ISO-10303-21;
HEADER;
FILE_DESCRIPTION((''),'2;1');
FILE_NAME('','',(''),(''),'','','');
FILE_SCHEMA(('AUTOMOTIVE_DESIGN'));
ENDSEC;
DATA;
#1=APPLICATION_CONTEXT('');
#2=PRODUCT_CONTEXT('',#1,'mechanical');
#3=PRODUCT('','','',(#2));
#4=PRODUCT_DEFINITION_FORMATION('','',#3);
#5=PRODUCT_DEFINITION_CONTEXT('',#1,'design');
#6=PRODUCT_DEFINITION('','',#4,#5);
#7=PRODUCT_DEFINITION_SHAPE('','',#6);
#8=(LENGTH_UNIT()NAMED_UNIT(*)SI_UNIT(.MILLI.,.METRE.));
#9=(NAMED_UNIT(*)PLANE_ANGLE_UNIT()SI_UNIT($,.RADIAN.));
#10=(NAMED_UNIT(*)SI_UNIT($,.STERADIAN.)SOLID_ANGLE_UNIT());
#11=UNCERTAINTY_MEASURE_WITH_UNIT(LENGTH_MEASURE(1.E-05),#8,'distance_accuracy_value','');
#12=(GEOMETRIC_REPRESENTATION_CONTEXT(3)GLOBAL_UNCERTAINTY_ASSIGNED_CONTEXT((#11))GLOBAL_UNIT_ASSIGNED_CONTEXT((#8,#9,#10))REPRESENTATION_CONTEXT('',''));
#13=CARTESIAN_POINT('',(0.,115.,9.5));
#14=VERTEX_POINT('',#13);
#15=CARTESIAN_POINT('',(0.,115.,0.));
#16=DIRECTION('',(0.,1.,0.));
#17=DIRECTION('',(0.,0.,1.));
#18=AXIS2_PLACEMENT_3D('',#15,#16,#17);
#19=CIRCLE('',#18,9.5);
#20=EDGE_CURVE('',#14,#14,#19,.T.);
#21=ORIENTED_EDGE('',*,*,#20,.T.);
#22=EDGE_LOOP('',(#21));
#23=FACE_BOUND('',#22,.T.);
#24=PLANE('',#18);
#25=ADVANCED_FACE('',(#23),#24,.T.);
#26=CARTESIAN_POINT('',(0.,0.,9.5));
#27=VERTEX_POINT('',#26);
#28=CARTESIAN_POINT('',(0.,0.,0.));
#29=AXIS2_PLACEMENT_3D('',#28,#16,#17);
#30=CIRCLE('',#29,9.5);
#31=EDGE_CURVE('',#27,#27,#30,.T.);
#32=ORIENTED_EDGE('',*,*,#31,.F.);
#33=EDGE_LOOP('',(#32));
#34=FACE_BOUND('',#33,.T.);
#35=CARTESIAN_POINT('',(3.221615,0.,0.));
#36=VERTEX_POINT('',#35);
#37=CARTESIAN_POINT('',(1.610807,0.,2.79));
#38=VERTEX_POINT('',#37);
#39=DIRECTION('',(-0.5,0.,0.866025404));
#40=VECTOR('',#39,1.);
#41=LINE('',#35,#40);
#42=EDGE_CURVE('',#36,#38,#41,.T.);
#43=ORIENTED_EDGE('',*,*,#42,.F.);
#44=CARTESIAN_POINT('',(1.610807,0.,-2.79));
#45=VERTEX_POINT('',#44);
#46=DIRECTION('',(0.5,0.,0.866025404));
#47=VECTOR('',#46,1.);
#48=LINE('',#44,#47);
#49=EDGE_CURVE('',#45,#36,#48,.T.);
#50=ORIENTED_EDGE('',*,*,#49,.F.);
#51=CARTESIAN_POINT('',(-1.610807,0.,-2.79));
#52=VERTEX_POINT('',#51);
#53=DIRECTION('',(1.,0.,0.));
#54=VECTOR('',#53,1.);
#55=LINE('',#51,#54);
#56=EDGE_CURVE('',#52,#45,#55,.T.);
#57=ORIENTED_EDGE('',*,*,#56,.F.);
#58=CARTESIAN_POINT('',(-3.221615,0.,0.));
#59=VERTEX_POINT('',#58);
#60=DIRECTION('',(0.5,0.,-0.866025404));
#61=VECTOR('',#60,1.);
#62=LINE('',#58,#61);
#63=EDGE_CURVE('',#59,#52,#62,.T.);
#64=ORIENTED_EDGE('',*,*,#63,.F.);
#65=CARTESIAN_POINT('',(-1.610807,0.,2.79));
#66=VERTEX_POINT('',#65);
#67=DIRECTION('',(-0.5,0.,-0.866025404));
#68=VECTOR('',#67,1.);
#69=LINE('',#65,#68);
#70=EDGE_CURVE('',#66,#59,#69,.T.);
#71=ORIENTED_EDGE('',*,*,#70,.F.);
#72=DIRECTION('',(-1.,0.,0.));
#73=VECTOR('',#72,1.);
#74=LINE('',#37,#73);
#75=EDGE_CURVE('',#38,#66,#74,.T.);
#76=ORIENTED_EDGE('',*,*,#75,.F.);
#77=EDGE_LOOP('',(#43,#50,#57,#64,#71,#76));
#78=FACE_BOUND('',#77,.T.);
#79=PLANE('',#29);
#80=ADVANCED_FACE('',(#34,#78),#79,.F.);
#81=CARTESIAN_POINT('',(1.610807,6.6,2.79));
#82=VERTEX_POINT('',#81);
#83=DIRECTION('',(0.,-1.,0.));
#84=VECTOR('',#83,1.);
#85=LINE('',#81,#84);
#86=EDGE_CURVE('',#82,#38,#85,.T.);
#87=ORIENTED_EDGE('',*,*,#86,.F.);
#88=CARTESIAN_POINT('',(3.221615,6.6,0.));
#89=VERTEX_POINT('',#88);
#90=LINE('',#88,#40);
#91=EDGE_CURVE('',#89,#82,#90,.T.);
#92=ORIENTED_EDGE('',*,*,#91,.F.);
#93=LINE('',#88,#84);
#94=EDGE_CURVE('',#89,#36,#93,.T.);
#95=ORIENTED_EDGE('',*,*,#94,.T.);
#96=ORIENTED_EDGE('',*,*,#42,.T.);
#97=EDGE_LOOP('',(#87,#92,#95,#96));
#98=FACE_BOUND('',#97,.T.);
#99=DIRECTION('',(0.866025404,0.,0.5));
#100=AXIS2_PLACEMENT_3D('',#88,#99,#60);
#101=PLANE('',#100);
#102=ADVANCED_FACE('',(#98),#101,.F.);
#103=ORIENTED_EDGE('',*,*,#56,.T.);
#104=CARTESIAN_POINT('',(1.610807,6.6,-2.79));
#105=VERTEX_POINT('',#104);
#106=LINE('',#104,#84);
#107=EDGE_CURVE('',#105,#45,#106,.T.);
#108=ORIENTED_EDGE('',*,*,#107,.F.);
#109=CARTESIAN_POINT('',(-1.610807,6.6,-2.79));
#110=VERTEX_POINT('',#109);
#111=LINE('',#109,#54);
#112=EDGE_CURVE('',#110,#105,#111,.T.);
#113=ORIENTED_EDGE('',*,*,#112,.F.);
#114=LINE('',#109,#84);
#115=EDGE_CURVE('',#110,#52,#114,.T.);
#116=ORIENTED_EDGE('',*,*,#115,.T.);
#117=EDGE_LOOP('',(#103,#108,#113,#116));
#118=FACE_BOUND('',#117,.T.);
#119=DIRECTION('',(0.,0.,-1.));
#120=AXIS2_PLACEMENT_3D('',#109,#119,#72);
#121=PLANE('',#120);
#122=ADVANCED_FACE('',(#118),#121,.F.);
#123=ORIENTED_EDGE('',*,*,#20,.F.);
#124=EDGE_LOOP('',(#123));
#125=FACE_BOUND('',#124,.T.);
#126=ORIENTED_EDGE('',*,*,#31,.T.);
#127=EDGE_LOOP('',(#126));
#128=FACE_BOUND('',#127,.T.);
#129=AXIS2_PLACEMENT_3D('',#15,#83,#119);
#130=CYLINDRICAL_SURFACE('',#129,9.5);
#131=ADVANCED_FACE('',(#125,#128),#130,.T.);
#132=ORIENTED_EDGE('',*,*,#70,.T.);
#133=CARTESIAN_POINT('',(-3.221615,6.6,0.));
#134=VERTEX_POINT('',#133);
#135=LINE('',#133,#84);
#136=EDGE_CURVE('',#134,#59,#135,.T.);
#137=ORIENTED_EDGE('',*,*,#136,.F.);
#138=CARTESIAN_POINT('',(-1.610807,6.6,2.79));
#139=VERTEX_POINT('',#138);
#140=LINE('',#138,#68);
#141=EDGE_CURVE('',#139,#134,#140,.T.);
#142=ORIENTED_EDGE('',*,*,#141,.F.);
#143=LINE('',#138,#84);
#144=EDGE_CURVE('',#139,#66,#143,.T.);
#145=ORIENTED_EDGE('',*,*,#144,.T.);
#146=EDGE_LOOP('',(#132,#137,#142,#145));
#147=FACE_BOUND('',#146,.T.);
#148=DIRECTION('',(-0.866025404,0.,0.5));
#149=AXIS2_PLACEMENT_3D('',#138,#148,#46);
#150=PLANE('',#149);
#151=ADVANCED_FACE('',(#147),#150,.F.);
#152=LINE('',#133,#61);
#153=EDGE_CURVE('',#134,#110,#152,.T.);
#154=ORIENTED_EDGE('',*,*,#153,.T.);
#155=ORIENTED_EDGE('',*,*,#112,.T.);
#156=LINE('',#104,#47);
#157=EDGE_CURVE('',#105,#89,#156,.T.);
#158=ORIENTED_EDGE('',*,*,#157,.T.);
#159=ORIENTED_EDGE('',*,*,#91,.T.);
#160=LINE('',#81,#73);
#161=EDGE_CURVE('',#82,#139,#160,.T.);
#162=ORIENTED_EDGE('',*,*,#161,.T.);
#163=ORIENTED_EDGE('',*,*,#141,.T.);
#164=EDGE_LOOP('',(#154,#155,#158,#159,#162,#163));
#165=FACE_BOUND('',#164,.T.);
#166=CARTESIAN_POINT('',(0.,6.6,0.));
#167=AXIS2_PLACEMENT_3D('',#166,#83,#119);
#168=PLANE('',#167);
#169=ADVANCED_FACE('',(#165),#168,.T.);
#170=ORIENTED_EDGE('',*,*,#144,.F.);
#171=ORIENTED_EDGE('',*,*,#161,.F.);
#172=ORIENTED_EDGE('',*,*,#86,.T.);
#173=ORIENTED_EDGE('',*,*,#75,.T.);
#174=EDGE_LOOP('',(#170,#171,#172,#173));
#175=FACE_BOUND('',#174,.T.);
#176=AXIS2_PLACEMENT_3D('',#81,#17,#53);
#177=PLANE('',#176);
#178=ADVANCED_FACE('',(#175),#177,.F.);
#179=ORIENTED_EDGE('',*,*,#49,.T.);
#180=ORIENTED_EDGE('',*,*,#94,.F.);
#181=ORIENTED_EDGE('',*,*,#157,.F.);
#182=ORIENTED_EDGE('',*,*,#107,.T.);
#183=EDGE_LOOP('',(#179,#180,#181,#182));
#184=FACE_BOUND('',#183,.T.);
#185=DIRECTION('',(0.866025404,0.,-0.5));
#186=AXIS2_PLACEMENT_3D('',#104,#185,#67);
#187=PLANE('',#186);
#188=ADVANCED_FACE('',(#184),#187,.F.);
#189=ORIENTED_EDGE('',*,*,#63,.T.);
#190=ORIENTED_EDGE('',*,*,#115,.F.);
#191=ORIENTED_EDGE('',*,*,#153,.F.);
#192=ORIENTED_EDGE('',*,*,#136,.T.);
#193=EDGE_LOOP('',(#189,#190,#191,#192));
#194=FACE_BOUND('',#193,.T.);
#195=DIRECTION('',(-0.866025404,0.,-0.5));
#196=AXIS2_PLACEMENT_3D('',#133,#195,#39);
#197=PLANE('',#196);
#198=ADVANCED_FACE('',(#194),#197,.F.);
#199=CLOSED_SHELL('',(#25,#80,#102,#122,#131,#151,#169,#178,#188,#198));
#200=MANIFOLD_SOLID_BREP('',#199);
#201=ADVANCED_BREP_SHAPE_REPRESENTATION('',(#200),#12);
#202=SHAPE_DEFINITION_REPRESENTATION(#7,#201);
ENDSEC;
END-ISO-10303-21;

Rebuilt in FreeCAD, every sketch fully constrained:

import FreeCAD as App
import Part
import Sketcher

V = App.Vector
Q = App.Units.Quantity

doc = App.newDocument("Part")
body = doc.addObject("PartDesign::Body", "Body")

# Sketch on XZ plane
sketch1 = doc.addObject("Sketcher::SketchObject", "Sketch")
body.addObject(sketch1)
sketch1.AttachmentSupport = (doc.XZ_Plane, [""])
sketch1.MapMode = "FlatFace"
sketch1.addGeometry(Part.Circle(V(0, 0, 0), V(0, 0, 1), 10), False)
sketch1.addConstraint([
    Sketcher.Constraint("Coincident", 0, 3, -1, 1),
    Sketcher.Constraint("Diameter", 0, 19.0),
])
pad1 = doc.addObject("PartDesign::Pad", "Pad")
body.addObject(pad1)
pad1.Profile = sketch1
pad1.Length = 115
pad1.Reversed = True

# Sketch on XZ plane
sketch2 = doc.addObject("Sketcher::SketchObject", "Sketch001")
body.addObject(sketch2)
sketch2.AttachmentSupport = (doc.XZ_Plane, [""])
sketch2.MapMode = "FlatFace"
sketch2.addGeometry([
    Part.LineSegment(V(1.6, 2.8, 0), V(-1.6, 2.8, 0)),  # 0
    Part.LineSegment(V(-1.6, 2.8, 0), V(-3.2, 0, 0)),  # 1
    Part.LineSegment(V(-3.2, 0, 0), V(-1.6, -2.8, 0)),  # 2
    Part.LineSegment(V(-1.6, -2.8, 0), V(1.6, -2.8, 0)),  # 3
    Part.LineSegment(V(1.6, -2.8, 0), V(3.2, 0, 0)),  # 4
    Part.LineSegment(V(3.2, 0, 0), V(1.6, 2.8, 0)),  # 5
], False)
sketch2.addConstraint([
    Sketcher.Constraint("Coincident", 0, 2, 1, 1),
    Sketcher.Constraint("Coincident", 1, 2, 2, 1),
    Sketcher.Constraint("Coincident", 2, 2, 3, 1),
    Sketcher.Constraint("Coincident", 3, 2, 4, 1),
    Sketcher.Constraint("Coincident", 4, 2, 5, 1),
    Sketcher.Constraint("Coincident", 5, 2, 0, 1),
    Sketcher.Constraint("Horizontal", 0),
    Sketcher.Constraint("Horizontal", 3),
    Sketcher.Constraint("Symmetric", 0, 2, 3, 2, -1, 1),
    Sketcher.Constraint("Symmetric", 1, 2, 4, 2, -1, 1),
    Sketcher.Constraint("PointOnObject", 1, 2, -1),
    Sketcher.Constraint("Parallel", 2, 5),
    Sketcher.Constraint("Vertical", 0, 2, 2, 2),
    Sketcher.Constraint("Angle", 1, Q("-120 deg")),
    Sketcher.Constraint("DistanceY", -1, 1, 0, 2, 2.79),
    Sketcher.Constraint("DistanceX", 0, 2, 0, 1, 3.221615),
])
pocket1 = doc.addObject("PartDesign::Pocket", "Pocket")
body.addObject(pocket1)
pocket1.Profile = sketch2
pocket1.Length = 6.6

doc.recompute()
